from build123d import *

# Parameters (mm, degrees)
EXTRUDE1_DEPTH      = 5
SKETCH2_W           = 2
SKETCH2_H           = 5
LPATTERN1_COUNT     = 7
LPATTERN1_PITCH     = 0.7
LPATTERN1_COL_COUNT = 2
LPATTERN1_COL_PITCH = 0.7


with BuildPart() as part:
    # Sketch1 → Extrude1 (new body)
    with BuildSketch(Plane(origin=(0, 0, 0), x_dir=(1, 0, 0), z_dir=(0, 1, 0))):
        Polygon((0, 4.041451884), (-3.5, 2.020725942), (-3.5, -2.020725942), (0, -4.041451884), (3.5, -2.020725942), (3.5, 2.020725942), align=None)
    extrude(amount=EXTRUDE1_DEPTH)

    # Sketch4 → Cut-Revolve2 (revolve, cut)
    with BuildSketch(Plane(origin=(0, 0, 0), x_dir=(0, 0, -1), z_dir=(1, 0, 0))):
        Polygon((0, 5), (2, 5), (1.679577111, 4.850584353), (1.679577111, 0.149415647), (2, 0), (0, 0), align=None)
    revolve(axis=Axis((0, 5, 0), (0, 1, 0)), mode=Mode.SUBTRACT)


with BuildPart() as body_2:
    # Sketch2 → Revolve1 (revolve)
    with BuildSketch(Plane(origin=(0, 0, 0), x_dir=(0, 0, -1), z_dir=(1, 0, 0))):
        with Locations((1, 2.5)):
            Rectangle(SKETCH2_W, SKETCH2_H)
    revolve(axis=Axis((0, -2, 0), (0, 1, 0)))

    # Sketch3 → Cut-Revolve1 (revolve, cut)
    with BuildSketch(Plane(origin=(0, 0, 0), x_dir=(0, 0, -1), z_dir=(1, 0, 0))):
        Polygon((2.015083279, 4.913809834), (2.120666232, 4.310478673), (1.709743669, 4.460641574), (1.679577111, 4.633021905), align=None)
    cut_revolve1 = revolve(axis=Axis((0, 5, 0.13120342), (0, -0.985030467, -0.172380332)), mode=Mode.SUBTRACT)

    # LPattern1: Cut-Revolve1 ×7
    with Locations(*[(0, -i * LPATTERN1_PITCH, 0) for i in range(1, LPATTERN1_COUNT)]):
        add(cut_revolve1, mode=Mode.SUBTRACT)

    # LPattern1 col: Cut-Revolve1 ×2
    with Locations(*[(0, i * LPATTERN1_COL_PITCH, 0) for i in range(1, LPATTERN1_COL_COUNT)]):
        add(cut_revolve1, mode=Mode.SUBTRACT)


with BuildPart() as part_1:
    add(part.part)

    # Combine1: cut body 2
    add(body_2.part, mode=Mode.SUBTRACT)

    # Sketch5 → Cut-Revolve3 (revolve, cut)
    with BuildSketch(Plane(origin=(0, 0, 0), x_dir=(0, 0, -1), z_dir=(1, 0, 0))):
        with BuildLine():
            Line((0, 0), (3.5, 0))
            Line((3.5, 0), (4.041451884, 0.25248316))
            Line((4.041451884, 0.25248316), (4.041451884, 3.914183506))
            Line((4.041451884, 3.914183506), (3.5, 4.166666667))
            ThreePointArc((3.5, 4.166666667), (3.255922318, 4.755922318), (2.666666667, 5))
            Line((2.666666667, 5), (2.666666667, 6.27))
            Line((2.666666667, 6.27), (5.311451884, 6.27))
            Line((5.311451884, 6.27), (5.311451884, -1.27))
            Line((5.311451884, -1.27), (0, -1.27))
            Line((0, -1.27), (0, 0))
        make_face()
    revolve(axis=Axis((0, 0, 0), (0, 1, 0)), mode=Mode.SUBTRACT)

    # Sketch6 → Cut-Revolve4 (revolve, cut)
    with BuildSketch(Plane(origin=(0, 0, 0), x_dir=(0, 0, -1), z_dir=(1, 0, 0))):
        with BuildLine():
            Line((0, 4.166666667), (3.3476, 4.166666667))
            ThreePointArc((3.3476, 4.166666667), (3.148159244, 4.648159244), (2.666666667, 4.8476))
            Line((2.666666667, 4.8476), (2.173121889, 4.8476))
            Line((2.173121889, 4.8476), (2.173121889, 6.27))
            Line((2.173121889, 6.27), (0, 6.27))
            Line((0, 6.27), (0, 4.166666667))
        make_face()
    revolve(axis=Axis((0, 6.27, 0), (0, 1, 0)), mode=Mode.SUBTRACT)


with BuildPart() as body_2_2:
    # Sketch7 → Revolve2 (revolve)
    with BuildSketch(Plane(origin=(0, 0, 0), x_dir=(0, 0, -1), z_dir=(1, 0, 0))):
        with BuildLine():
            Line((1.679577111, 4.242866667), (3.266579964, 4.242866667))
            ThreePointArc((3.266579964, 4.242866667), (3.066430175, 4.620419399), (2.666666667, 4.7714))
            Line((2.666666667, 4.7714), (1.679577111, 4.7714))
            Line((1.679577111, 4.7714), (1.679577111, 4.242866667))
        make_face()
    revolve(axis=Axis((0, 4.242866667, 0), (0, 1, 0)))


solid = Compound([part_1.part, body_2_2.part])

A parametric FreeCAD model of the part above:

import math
import FreeCAD as App
import Part
import Sketcher
Q = App.Units.Quantity

doc = App.newDocument("Part")
body = doc.addObject("PartDesign::Body", "Body")

sketch1 = doc.addObject("Sketcher::SketchObject", "Sketch")
body.addObject(sketch1)
sketch1.AttachmentSupport = (doc.XZ_Plane, [""])
sketch1.MapMode = "FlatFace"
sketch1.addGeometry([
    Part.LineSegment(App.Vector(0, -4.041452, 0), App.Vector(-3.5, -2.020726, 0)),
    Part.LineSegment(App.Vector(-3.5, -2.020726, 0), App.Vector(-3.5, 2.020726, 0)),
    Part.LineSegment(App.Vector(-3.5, 2.020726, 0), App.Vector(0, 4.041452, 0)),
    Part.LineSegment(App.Vector(0, 4.041452, 0), App.Vector(3.5, 2.020726, 0)),
    Part.LineSegment(App.Vector(3.5, 2.020726, 0), App.Vector(3.5, -2.020726, 0)),
    Part.LineSegment(App.Vector(3.5, -2.020726, 0), App.Vector(0, -4.041452, 0)),
], False)
sketch1.addConstraint([
    Sketcher.Constraint("Coincident", 0, 2, 1, 1),
    Sketcher.Constraint("Coincident", 1, 2, 2, 1),
    Sketcher.Constraint("Coincident", 2, 2, 3, 1),
    Sketcher.Constraint("Coincident", 3, 2, 4, 1),
    Sketcher.Constraint("Coincident", 4, 2, 5, 1),
    Sketcher.Constraint("Coincident", 5, 2, 0, 1),
    Sketcher.Constraint("Vertical", 1),
    Sketcher.Constraint("Vertical", 4),
    Sketcher.Constraint("Symmetric", 0, 2, 3, 2, -1, 1),
    Sketcher.Constraint("Symmetric", 2, 2, 5, 2, -1, 1),
    Sketcher.Constraint("PointOnObject", 2, 2, -2),
    Sketcher.Constraint("Parallel", 2, 5),
    Sketcher.Constraint("Horizontal", 1, 2, 3, 2),
    Sketcher.Constraint("Angle", 0, Q("150 deg")),
    Sketcher.Constraint("DistanceX", 1, 2, 3, 2, 7.0),
    Sketcher.Constraint("DistanceY", 1, 1, 1, 2, 4.041452),
])
pad1 = doc.addObject("PartDesign::Pad", "Pad")
body.addObject(pad1)
pad1.Profile = sketch1
pad1.Length = 5
pad1.Reversed = True

sketch2 = doc.addObject("Sketcher::SketchObject", "Sketch001")
body.addObject(sketch2)
sketch2.AttachmentSupport = (doc.YZ_Plane, [""])
sketch2.MapMode = "FlatFace"
sketch2.addGeometry([
    Part.LineSegment(App.Vector(5, -2, 0), App.Vector(5, 0, 0)),
    Part.LineSegment(App.Vector(5, 0, 0), App.Vector(0, 0, 0)),
    Part.LineSegment(App.Vector(0, 0, 0), App.Vector(0, -2, 0)),
    Part.LineSegment(App.Vector(0, -2, 0), App.Vector(0.149416, -1.679577, 0)),
    Part.LineSegment(App.Vector(0.149416, -1.679577, 0), App.Vector(4.850584, -1.679577, 0)),
    Part.LineSegment(App.Vector(4.850584, -1.679577, 0), App.Vector(5, -2, 0)),
], False)
sketch2.addConstraint([
    Sketcher.Constraint("Coincident", 0, 2, 1, 1),
    Sketcher.Constraint("Coincident", 1, 2, 2, 1),
    Sketcher.Constraint("Coincident", 2, 2, 3, 1),
    Sketcher.Constraint("Coincident", 3, 2, 4, 1),
    Sketcher.Constraint("Coincident", 4, 2, 5, 1),
    Sketcher.Constraint("Coincident", 5, 2, 0, 1),
    Sketcher.Constraint("Vertical", 0),
    Sketcher.Constraint("Horizontal", 1),
    Sketcher.Constraint("Vertical", 2),
    Sketcher.Constraint("Horizontal", 4),
    Sketcher.Constraint("Coincident", 1, 2, -1, 1),
    Sketcher.Constraint("Horizontal", 2, 2, 5, 2),
    Sketcher.Constraint("Equal", 3, 5),
    Sketcher.Constraint("DistanceX", 1, 2, 1, 1, 5.0),
    Sketcher.Constraint("DistanceY", 0, 1, 0, 2, 2.0),
    Sketcher.Constraint("Angle", 3, Q("65 deg")),
    Sketcher.Constraint("DistanceX", 4, 1, 4, 2, 4.701169),
])
groove = doc.addObject("PartDesign::Groove", "Groove")
body.addObject(groove)
groove.Profile = sketch2
groove.ReferenceAxis = (sketch2, ["H_Axis"])
groove.Angle = 360
body2 = doc.addObject("PartDesign::Body", "Body001")

sketch3 = doc.addObject("Sketcher::SketchObject", "Sketch002")
body2.addObject(sketch3)
sketch3.AttachmentSupport = (doc.getObject("YZ_Plane001"), [""])
sketch3.MapMode = "FlatFace"
sketch3.addGeometry([
    Part.LineSegment(App.Vector(5, 0, 0), App.Vector(0, 0, 0)),
    Part.LineSegment(App.Vector(0, 0, 0), App.Vector(0, -2, 0)),
    Part.LineSegment(App.Vector(0, -2, 0), App.Vector(5, -2, 0)),
    Part.LineSegment(App.Vector(5, -2, 0), App.Vector(5, 0, 0)),
], False)
sketch3.addConstraint([
    Sketcher.Constraint("Coincident", 0, 2, 1, 1),
    Sketcher.Constraint("Coincident", 1, 2, 2, 1),
    Sketcher.Constraint("Coincident", 2, 2, 3, 1),
    Sketcher.Constraint("Coincident", 3, 2, 0, 1),
    Sketcher.Constraint("Horizontal", 0),
    Sketcher.Constraint("Vertical", 1),
    Sketcher.Constraint("Horizontal", 2),
    Sketcher.Constraint("Vertical", 3),
    Sketcher.Constraint("Coincident", 0, 2, -1, 1),
    Sketcher.Constraint("DistanceX", 0, 2, 0, 1, 5.0),
    Sketcher.Constraint("DistanceY", 1, 2, 1, 1, 2.0),
])
revolution = doc.addObject("PartDesign::Revolution", "Revolution")
body2.addObject(revolution)
revolution.Profile = sketch3
revolution.ReferenceAxis = (sketch3, ["H_Axis"])
revolution.Angle = 360

sketch4 = doc.addObject("Sketcher::SketchObject", "Sketch003")
body2.addObject(sketch4)
sketch4.AttachmentSupport = (doc.getObject("YZ_Plane001"), [""])
sketch4.MapMode = "FlatFace"
sketch4.addGeometry([
    Part.LineSegment(App.Vector(4.310479, -2.120666, 0), App.Vector(4.91381, -2.015083, 0)),
    Part.LineSegment(App.Vector(4.91381, -2.015083, 0), App.Vector(4.633022, -1.679577, 0)),
    Part.LineSegment(App.Vector(4.633022, -1.679577, 0), App.Vector(4.460642, -1.709744, 0)),
    Part.LineSegment(App.Vector(4.460642, -1.709744, 0), App.Vector(4.310479, -2.120666, 0)),
], False)
sketch4.addGeometry(Part.LineSegment(App.Vector(4.551932, 0.052791, 0), App.Vector(3.948601, -0.052791, 0)), True)
sketch4.addConstraint([
    Sketcher.Constraint("Coincident", 0, 2, 1, 1),
    Sketcher.Constraint("Coincident", 1, 2, 2, 1),
    Sketcher.Constraint("Coincident", 2, 2, 3, 1),
    Sketcher.Constraint("Coincident", 3, 2, 0, 1),
    Sketcher.Constraint("Parallel", 0, 2),
    Sketcher.Constraint("Parallel", 2, 4),
    Sketcher.Constraint("Equal", 1, 3),
    Sketcher.Constraint("Equal", 0, 4),
    Sketcher.Constraint("Distance", 2, 0.175),
    Sketcher.Constraint("Distance", 0, 0.6125),
    Sketcher.Constraint("Distance", 1, 0.4375),
    Sketcher.Constraint("DistanceX", -1, 1, 4, 2, 3.948601),
    Sketcher.Constraint("DistanceX", -1, 1, 0, 2, 4.91381),
    Sketcher.Constraint("DistanceX", -1, 1, 1, 2, 4.633022),
    Sketcher.Constraint("DistanceY", -1, 1, 4, 1, 0.052791),
    Sketcher.Constraint("DistanceY", 1, 2, 4, 1, 1.732369),
])
groove2 = doc.addObject("PartDesign::Groove", "Groove001")
body2.addObject(groove2)
groove2.Profile = sketch4
groove2.ReferenceAxis = (sketch4, ["Axis0"])
groove2.Angle = 360
doc.recompute()

linearpattern = doc.addObject("PartDesign::LinearPattern", "LinearPattern")
body2.addObject(linearpattern)
linearpattern.Originals = [groove2]
linearpattern.Direction = (doc.getObject("Y_Axis001"), [""])
linearpattern.Mode = "offset"
linearpattern.Offset = 0.7
linearpattern.Occurrences = 7
linearpattern.Reversed = True
body2.Tip = linearpattern
doc.recompute()

linearpattern2 = doc.addObject("PartDesign::LinearPattern", "LinearPattern001")
body2.addObject(linearpattern2)
linearpattern2.Originals = [groove2]
linearpattern2.Direction = (doc.getObject("Y_Axis001"), [""])
linearpattern2.Mode = "offset"
linearpattern2.Offset = 0.7
linearpattern2.Occurrences = 2
body2.Tip = linearpattern2
doc.recompute()

boolean = doc.addObject("PartDesign::Boolean", "Boolean")
body.addObject(boolean)
boolean.Type = "Cut"
boolean.addObjects([body2])

sketch5 = doc.addObject("Sketcher::SketchObject", "Sketch004")
body.addObject(sketch5)
sketch5.AttachmentSupport = (doc.YZ_Plane, [""])
sketch5.MapMode = "FlatFace"
sketch5.addGeometry([
    Part.LineSegment(App.Vector(0, -3.5, 0), App.Vector(0, 0, 0)),
    Part.LineSegment(App.Vector(0, 0, 0), App.Vector(-1.27, 0, 0)),
    Part.LineSegment(App.Vector(-1.27, 0, 0), App.Vector(-1.27, -5.311452, 0)),
    Part.LineSegment(App.Vector(-1.27, -5.311452, 0), App.Vector(6.27, -5.311452, 0)),
    Part.LineSegment(App.Vector(6.27, -5.311452, 0), App.Vector(6.27, -2.666667, 0)),
    Part.LineSegment(App.Vector(6.27, -2.666667, 0), App.Vector(5, -2.666667, 0)),
    Part.ArcOfCircle(Part.Circle(App.Vector(4.166667, -2.666667, 0), App.Vector(0, 0, 1), 0.833333), math.radians(-90), math.radians(0)),
    Part.LineSegment(App.Vector(4.166667, -3.5, 0), App.Vector(3.914184, -4.041452, 0)),
    Part.LineSegment(App.Vector(3.914184, -4.041452, 0), App.Vector(0.252483, -4.041452, 0)),
    Part.LineSegment(App.Vector(0.252483, -4.041452, 0), App.Vector(0, -3.5, 0)),
], False)
sketch5.addConstraint([
    Sketcher.Constraint("Coincident", 0, 2, 1, 1),
    Sketcher.Constraint("Coincident", 1, 2, 2, 1),
    Sketcher.Constraint("Coincident", 2, 2, 3, 1),
    Sketcher.Constraint("Coincident", 3, 2, 4, 1),
    Sketcher.Constraint("Coincident", 4, 2, 5, 1),
    Sketcher.Constraint("Coincident", 5, 2, 6, 2),
    Sketcher.Constraint("Coincident", 6, 1, 7, 1),
    Sketcher.Constraint("Coincident", 7, 2, 8, 1),
    Sketcher.Constraint("Coincident", 8, 2, 9, 1),
    Sketcher.Constraint("Coincident", 9, 2, 0, 1),
    Sketcher.Constraint("Vertical", 0),
    Sketcher.Constraint("Horizontal", 1),
    Sketcher.Constraint("Vertical", 2),
    Sketcher.Constraint("Horizontal", 3),
    Sketcher.Constraint("Vertical", 4),
    Sketcher.Constraint("Horizontal", 5),
    Sketcher.Constraint("Horizontal", 8),
    Sketcher.Constraint("Coincident", 0, 2, -1, 1),
    Sketcher.Constraint("Horizontal", 6, 3, 4, 2),
    Sketcher.Constraint("Horizontal", 6, 1, 9, 2),
    Sketcher.Constraint("Equal", 1, 5),
    Sketcher.Constraint("Equal", 7, 9),
    Sketcher.Constraint("Angle", 7, Q("-115 deg")),
    Sketcher.Constraint("DistanceY", 0, 1, 0, 2, 3.5),
    Sketcher.Constraint("DistanceX", -1, 1, 5, 2, 5.0),
    Sketcher.Constraint("DistanceX", 1, 2, 1, 1, 1.27),
    Sketcher.Constraint("DistanceY", 3, 2, 7, 2, 1.27),
    Sketcher.Constraint("DistanceX", 8, 2, 8, 1, 3.6617),
    Sketcher.Constraint("Radius", 6, 0.833333),
    Sketcher.Constraint("DistanceY", 2, 2, 2, 1, 5.311452),
])
groove3 = doc.addObject("PartDesign::Groove", "Groove002")
body.addObject(groove3)
groove3.Profile = sketch5
groove3.ReferenceAxis = (sketch5, ["H_Axis"])
groove3.Angle = 360

sketch6 = doc.addObject("Sketcher::SketchObject", "Sketch005")
body.addObject(sketch6)
sketch6.AttachmentSupport = (doc.YZ_Plane, [""])
sketch6.MapMode = "FlatFace"
sketch6.addGeometry([
    Part.LineSegment(App.Vector(4.166667, 0, 0), App.Vector(4.166667, -3.3476, 0)),
    Part.ArcOfCircle(Part.Circle(App.Vector(4.166667, -2.666667, 0), App.Vector(0, 0, 1), 0.680933), math.radians(-90), math.radians(0)),
    Part.LineSegment(App.Vector(4.8476, -2.666667, 0), App.Vector(4.8476, -2.173122, 0)),
    Part.LineSegment(App.Vector(4.8476, -2.173122, 0), App.Vector(6.27, -2.173122, 0)),
    Part.LineSegment(App.Vector(6.27, -2.173122, 0), App.Vector(6.27, 0, 0)),
    Part.LineSegment(App.Vector(6.27, 0, 0), App.Vector(4.166667, 0, 0)),
], False)
sketch6.addConstraint([
    Sketcher.Constraint("Coincident", 0, 2, 1, 1),
    Sketcher.Constraint("Tangent", 1, 2, 2, 1),
    Sketcher.Constraint("Coincident", 2, 2, 3, 1),
    Sketcher.Constraint("Coincident", 3, 2, 4, 1),
    Sketcher.Constraint("Coincident", 4, 2, 5, 1),
    Sketcher.Constraint("Coincident", 5, 2, 0, 1),
    Sketcher.Constraint("Vertical", 0),
    Sketcher.Constraint("Vertical", 2),
    Sketcher.Constraint("Horizontal", 3),
    Sketcher.Constraint("Vertical", 4),
    Sketcher.Constraint("Horizontal", 5),
    Sketcher.Constraint("PointOnObject", 4, 2, -1),
    Sketcher.Constraint("Vertical", 1, 3, 0, 2),
    Sketcher.Constraint("DistanceX", -1, 1, 3, 2, 6.27),
    Sketcher.Constraint("DistanceX", 3, 1, 3, 2, 1.4224),
    Sketcher.Constraint("DistanceY", 0, 2, 0, 1, 3.3476),
    Sketcher.Constraint("Radius", 1, 0.680933),
    Sketcher.Constraint("DistanceY", 4, 1, 4, 2, 2.173122),
])
groove4 = doc.addObject("PartDesign::Groove", "Groove003")
body.addObject(groove4)
groove4.Profile = sketch6
groove4.ReferenceAxis = (sketch6, ["H_Axis"])
groove4.Angle = 360
body3 = doc.addObject("PartDesign::Body", "Body002")

sketch7 = doc.addObject("Sketcher::SketchObject", "Sketch006")
body3.addObject(sketch7)
sketch7.AttachmentSupport = (doc.getObject("YZ_Plane002"), [""])
sketch7.MapMode = "FlatFace"
sketch7.addGeometry([
    Part.LineSegment(App.Vector(4.242867, -1.679577, 0), App.Vector(4.242867, -3.26658, 0)),
    Part.ArcOfCircle(Part.Circle(App.Vector(4.166667, -2.666667, 0), App.Vector(0, 0, 1), 0.604733), math.radians(-82.761148), math.radians(0)),
    Part.LineSegment(App.Vector(4.7714, -2.666667, 0), App.Vector(4.7714, -1.679577, 0)),
    Part.LineSegment(App.Vector(4.7714, -1.679577, 0), App.Vector(4.242867, -1.679577, 0)),
], False)
sketch7.addConstraint([
    Sketcher.Constraint("Coincident", 0, 2, 1, 1),
    Sketcher.Constraint("Tangent", 1, 2, 2, 1),
    Sketcher.Constraint("Coincident", 2, 2, 3, 1),
    Sketcher.Constraint("Coincident", 3, 2, 0, 1),
    Sketcher.Constraint("Vertical", 0),
    Sketcher.Constraint("Vertical", 2),
    Sketcher.Constraint("Horizontal", 3),
    Sketcher.Constraint("Radius", 1, 0.604733),
    Sketcher.Constraint("DistanceY", 2, 1, 2, 2, 0.98709),
    Sketcher.Constraint("DistanceX", -1, 1, 1, 2, 4.7714),
    Sketcher.Constraint("DistanceX", 1, 3, 0, 2, 0.0762),
    Sketcher.Constraint("DistanceY", 0, 2, -1, 1, 3.26658),
])
revolution2 = doc.addObject("PartDesign::Revolution", "Revolution001")
body3.addObject(revolution2)
revolution2.Profile = sketch7
revolution2.ReferenceAxis = (sketch7, ["H_Axis"])
revolution2.Angle = 360

doc.recompute()
